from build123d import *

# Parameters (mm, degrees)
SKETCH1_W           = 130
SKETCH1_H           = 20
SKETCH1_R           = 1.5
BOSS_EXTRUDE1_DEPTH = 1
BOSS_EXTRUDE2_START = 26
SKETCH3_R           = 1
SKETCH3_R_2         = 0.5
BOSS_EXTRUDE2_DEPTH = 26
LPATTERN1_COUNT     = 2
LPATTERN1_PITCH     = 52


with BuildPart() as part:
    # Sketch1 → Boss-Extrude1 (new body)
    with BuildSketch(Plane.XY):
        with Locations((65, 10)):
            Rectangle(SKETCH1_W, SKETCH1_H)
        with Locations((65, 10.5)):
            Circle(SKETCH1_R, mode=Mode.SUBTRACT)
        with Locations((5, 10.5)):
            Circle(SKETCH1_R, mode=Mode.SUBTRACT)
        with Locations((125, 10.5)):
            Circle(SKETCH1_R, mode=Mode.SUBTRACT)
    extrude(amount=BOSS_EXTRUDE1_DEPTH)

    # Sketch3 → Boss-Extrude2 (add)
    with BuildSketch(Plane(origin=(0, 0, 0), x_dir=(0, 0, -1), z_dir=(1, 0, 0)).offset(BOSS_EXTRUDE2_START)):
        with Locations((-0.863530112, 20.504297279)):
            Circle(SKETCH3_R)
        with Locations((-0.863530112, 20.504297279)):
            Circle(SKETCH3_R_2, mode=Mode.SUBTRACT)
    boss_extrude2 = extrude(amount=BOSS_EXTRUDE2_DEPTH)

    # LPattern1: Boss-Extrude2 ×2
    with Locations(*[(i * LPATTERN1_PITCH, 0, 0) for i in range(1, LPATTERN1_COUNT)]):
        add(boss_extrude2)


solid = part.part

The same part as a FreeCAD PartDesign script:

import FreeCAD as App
import Part
import Sketcher

V = App.Vector
Q = App.Units.Quantity

doc = App.newDocument("Part")
body = doc.addObject("PartDesign::Body", "Body")

# Sketch on XY plane
sketch1 = doc.addObject("Sketcher::SketchObject", "Sketch")
body.addObject(sketch1)
sketch1.AttachmentSupport = (doc.XY_Plane, [""])
sketch1.MapMode = "FlatFace"
sketch1.addGeometry([
    Part.LineSegment(V(0, 20, 0), V(0, 0, 0)),  # 0
    Part.LineSegment(V(0, 0, 0), V(130, 0, 0)),  # 1
    Part.LineSegment(V(130, 0, 0), V(130, 20, 0)),  # 2
    Part.LineSegment(V(130, 20, 0), V(0, 20, 0)),  # 3
    Part.Circle(V(5, 10.5, 0), V(0, 0, 1), 1.5),  # 4
    Part.Circle(V(65, 10.5, 0), V(0, 0, 1), 1.5),  # 5
    Part.Circle(V(125, 10.5, 0), V(0, 0, 1), 1.5),  # 6
], False)
sketch1.addConstraint([
    Sketcher.Constraint("Coincident", 0, 2, 1, 1),
    Sketcher.Constraint("Coincident", 1, 2, 2, 1),
    Sketcher.Constraint("Coincident", 2, 2, 3, 1),
    Sketcher.Constraint("Coincident", 3, 2, 0, 1),
    Sketcher.Constraint("Vertical", 0),
    Sketcher.Constraint("Horizontal", 1),
    Sketcher.Constraint("Vertical", 2),
    Sketcher.Constraint("Horizontal", 3),
    Sketcher.Constraint("Coincident", 0, 2, -1, 1),
    Sketcher.Constraint("Equal", 4, 5),
    Sketcher.Constraint("Equal", 5, 6),
    Sketcher.Constraint("Horizontal", 4, 3, 5, 3),
    Sketcher.Constraint("Horizontal", 5, 3, 6, 3),
    Sketcher.Constraint("Diameter", 4, Q("3 mm")),
    Sketcher.Constraint("DistanceX", 1, 1, 1, 2, Q("130 mm")),
    Sketcher.Constraint("DistanceY", 0, 2, 0, 1, Q("20 mm")),
    Sketcher.Constraint("DistanceX", -1, 1, 4, 3, Q("5 mm")),
    Sketcher.Constraint("DistanceX", -1, 1, 5, 3, Q("65 mm")),
    Sketcher.Constraint("DistanceX", -1, 1, 6, 3, Q("125 mm")),
    Sketcher.Constraint("DistanceY", -1, 1, 4, 3, Q("10.5 mm")),
])
pad1 = doc.addObject("PartDesign::Pad", "Pad")
body.addObject(pad1)
pad1.Profile = sketch1
pad1.Length = 1

# Sketch on YZ plane
sketch2 = doc.addObject("Sketcher::SketchObject", "Sketch001")
body.addObject(sketch2)
sketch2.AttachmentSupport = (doc.YZ_Plane, [""])
sketch2.MapMode = "FlatFace"
sketch2.AttachmentOffset = App.Placement(V(0, 0, 26), App.Rotation())
sketch2.addGeometry([
    Part.Circle(V(20.5, 0.9, 0), V(0, 0, 1), 1),
    Part.Circle(V(20.5, 0.9, 0), V(0, 0, 1), 0.5),
], False)
sketch2.addConstraint([
    Sketcher.Constraint("Coincident", 1, 3, 0, 3),
    Sketcher.Constraint("Diameter", 0, Q("2 mm")),
    Sketcher.Constraint("Diameter", 1, Q("1 mm")),
    Sketcher.Constraint("DistanceY", -1, 1, 0, 3, Q("0.86353 mm")),
    Sketcher.Constraint("DistanceX", -1, 1, 0, 3, Q("20.504297 mm")),
])
pad2 = doc.addObject("PartDesign::Pad", "Pad001")
body.addObject(pad2)
pad2.Profile = sketch2
pad2.Length = 26
doc.recompute()

linearpattern = doc.addObject("PartDesign::LinearPattern", "LinearPattern")
body.addObject(linearpattern)
linearpattern.Originals = [pad2]
linearpattern.Direction = (doc.X_Axis, [""])
linearpattern.Mode = "offset"
linearpattern.Offset = 52
linearpattern.Occurrences = 2
body.Tip = linearpattern

doc.recompute()
